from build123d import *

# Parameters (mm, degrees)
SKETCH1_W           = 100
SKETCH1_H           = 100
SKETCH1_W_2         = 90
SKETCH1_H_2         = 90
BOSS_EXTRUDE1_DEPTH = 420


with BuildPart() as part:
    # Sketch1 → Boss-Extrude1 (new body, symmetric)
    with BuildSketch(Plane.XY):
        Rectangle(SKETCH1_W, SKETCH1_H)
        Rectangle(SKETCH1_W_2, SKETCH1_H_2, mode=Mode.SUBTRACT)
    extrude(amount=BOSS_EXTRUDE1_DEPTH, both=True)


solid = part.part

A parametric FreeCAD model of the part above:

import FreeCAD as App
import Part
import Sketcher


def add_polygon(sketch, points):
    """Adds a closed chain of lines whose ends are joined by coincident constraints."""
    first, n = sketch.GeometryCount, len(points)
    for a, b in zip(points, points[1:] + points[:1]):
        sketch.addGeometry(Part.LineSegment(App.Vector(*a, 0), App.Vector(*b, 0)), False)
    for i in range(n):
        sketch.addConstraint(Sketcher.Constraint("Coincident", first + i, 2, first + (i + 1) % n, 1))

doc = App.newDocument("Part")
body = doc.addObject("PartDesign::Body", "Body")

# Sketch on XY plane
sketch1 = doc.addObject("Sketcher::SketchObject", "Sketch")
body.addObject(sketch1)
sketch1.AttachmentSupport = (doc.XY_Plane, [""])
sketch1.MapMode = "FlatFace"
add_polygon(sketch1, [(-50, 50), (-50, -50), (50, -50), (50, 50)])  # lines 0-3
add_polygon(sketch1, [(45, -45), (-45, -45), (-45, 45), (45, 45)])  # lines 4-7
sketch1.addConstraint([
    Sketcher.Constraint("Vertical", 0),
    Sketcher.Constraint("Horizontal", 1),
    Sketcher.Constraint("Vertical", 2),
    Sketcher.Constraint("Horizontal", 3),
    Sketcher.Constraint("Horizontal", 4),
    Sketcher.Constraint("Vertical", 5),
    Sketcher.Constraint("Horizontal", 6),
    Sketcher.Constraint("Vertical", 7),
    Sketcher.Constraint("Symmetric", 0, 2, 2, 2, -1, 1),
    Sketcher.Constraint("Symmetric", 4, 2, 6, 2, -1, 1),
    Sketcher.Constraint("Equal", 3, 0),
    Sketcher.Constraint("Equal", 6, 5),
    Sketcher.Constraint("DistanceX", 1, 1, 1, 2, 100.0),
    Sketcher.Constraint("DistanceX", 4, 2, 4, 1, 90.0),
])
pad1 = doc.addObject("PartDesign::Pad", "Pad")
body.addObject(pad1)
pad1.Profile = sketch1
pad1.Length = 840
pad1.Midplane = True

doc.recompute()
